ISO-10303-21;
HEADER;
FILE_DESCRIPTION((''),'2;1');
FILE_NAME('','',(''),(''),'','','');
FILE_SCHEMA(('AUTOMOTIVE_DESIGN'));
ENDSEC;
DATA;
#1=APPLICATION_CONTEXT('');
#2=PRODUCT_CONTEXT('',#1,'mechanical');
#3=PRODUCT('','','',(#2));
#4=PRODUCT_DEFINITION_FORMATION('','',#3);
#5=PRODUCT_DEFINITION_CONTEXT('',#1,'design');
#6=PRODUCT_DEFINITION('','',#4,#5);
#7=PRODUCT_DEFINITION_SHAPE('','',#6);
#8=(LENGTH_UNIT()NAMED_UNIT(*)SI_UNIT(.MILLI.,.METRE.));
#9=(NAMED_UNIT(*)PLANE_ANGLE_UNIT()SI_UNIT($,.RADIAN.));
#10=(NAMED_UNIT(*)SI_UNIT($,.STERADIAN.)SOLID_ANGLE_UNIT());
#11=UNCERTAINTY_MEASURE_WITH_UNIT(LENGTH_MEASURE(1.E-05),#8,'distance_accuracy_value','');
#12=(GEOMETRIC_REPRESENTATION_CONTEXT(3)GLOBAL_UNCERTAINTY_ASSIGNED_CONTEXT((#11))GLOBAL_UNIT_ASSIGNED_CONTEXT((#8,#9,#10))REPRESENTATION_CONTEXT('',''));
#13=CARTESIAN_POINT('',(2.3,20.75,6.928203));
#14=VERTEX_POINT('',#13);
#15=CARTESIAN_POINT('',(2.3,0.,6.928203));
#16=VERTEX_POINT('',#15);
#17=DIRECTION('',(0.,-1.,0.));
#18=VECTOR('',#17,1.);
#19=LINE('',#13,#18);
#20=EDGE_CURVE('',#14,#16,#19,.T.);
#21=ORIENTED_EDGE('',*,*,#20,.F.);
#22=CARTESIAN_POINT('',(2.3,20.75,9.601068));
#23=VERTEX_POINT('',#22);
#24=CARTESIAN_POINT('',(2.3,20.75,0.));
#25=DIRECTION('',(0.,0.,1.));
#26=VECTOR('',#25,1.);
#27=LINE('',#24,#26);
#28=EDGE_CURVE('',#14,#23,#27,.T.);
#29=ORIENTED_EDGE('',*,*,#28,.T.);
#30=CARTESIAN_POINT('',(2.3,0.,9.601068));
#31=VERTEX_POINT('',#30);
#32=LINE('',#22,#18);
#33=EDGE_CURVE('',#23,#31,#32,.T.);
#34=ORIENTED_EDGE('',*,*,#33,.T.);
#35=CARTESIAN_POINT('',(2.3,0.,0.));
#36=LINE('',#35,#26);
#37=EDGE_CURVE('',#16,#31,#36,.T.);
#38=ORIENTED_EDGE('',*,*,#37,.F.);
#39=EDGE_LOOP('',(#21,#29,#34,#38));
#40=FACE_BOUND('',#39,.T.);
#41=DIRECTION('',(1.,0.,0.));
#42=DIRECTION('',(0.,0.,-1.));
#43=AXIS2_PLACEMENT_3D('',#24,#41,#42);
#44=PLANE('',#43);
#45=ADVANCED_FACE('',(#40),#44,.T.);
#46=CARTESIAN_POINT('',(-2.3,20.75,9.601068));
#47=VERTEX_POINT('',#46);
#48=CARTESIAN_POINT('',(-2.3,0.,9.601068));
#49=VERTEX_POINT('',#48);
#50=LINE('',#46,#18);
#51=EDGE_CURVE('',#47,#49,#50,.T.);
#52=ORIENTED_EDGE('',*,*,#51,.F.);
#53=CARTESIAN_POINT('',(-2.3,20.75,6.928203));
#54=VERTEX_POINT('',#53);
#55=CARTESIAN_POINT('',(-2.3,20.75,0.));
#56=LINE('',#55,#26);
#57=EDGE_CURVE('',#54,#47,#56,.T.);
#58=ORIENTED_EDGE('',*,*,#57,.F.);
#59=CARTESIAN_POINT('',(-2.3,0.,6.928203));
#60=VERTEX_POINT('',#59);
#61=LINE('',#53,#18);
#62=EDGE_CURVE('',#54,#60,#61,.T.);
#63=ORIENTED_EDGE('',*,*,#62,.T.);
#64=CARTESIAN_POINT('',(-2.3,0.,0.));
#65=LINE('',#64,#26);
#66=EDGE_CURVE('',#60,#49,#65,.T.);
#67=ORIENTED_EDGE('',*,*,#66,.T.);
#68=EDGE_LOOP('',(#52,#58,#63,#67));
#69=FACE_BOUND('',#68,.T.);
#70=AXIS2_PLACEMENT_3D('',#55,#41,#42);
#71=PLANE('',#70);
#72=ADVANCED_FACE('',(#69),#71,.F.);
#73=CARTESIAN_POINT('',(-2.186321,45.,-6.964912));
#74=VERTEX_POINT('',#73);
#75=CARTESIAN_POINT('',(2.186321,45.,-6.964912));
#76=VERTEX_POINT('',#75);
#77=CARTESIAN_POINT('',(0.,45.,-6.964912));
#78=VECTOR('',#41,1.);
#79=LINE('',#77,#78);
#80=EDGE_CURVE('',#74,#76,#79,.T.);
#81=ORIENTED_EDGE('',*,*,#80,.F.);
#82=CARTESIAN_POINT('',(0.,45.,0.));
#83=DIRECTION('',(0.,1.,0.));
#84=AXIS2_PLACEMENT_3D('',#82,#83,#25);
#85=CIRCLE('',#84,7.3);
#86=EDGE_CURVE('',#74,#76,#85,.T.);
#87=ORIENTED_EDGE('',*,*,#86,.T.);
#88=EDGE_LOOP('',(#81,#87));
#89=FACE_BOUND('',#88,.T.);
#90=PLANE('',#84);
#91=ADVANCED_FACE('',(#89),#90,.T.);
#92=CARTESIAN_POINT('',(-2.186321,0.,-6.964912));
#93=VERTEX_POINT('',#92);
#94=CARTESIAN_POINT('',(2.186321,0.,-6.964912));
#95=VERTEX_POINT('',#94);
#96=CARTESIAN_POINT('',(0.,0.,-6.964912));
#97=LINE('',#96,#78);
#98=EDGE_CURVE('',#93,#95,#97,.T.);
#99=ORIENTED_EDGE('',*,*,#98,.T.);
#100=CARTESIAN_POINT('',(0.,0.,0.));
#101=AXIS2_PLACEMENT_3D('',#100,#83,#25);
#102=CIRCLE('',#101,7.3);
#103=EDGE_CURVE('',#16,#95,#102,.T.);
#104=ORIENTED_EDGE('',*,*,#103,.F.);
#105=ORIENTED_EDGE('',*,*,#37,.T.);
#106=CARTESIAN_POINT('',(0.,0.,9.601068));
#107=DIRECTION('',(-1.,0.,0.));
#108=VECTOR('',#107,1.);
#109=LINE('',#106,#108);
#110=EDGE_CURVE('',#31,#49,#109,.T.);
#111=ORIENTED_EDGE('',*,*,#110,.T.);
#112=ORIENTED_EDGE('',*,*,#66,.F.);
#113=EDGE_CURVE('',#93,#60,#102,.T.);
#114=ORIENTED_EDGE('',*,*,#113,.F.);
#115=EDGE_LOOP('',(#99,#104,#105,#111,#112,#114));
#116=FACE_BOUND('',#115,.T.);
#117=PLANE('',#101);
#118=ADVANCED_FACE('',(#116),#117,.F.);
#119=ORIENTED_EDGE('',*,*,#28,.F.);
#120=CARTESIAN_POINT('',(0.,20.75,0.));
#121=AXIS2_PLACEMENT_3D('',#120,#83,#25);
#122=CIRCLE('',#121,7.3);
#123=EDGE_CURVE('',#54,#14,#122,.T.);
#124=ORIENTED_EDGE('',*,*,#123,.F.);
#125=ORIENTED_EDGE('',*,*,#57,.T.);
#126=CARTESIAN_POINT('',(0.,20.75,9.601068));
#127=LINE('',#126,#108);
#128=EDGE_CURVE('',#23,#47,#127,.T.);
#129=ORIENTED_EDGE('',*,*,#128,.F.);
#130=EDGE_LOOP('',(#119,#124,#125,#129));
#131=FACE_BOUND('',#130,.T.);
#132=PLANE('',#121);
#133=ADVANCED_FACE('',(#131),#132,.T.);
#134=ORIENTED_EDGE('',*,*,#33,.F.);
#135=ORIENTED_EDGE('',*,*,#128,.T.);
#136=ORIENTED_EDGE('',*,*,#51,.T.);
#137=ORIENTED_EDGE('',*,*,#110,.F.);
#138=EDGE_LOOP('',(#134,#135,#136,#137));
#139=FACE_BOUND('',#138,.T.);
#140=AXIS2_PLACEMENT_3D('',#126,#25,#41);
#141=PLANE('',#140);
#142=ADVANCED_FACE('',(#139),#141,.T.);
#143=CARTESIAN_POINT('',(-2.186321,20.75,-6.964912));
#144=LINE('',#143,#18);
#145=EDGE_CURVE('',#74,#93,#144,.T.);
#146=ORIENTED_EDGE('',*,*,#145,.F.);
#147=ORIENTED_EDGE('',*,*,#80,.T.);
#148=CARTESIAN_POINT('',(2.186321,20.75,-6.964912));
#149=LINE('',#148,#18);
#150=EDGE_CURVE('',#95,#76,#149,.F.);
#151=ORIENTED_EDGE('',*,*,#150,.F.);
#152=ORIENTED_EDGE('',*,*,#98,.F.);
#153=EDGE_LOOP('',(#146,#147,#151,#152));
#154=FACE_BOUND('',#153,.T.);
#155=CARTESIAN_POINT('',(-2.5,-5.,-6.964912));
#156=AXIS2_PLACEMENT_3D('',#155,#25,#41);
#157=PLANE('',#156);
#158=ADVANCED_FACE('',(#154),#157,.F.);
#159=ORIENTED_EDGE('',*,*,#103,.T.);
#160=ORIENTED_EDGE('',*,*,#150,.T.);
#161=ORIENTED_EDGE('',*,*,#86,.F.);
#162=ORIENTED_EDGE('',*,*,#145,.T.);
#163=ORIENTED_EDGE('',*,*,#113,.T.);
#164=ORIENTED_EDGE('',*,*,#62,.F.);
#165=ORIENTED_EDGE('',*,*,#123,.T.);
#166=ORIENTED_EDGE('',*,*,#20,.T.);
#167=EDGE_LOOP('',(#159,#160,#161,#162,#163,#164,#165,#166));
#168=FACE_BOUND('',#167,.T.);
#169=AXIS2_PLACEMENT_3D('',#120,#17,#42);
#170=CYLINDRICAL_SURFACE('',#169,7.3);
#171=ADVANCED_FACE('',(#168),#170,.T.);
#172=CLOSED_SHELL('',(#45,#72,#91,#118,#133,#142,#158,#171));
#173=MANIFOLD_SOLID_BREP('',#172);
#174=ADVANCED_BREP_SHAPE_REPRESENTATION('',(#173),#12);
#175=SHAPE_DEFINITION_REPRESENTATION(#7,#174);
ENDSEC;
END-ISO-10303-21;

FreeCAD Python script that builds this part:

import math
import FreeCAD as App
import Part
import Sketcher

doc = App.newDocument("Part")
body = doc.addObject("PartDesign::Body", "Body")

# Sketch on XZ plane
sketch1 = body.newObject("Sketcher::SketchObject", "Sketch")
sketch1.AttachmentSupport = (doc.getObject("XZ_Plane"), [""])
sketch1.MapMode = "FlatFace"
sketch1.addGeometry([
    Part.LineSegment(App.Vector(-2.3, 6.928203, 0), App.Vector(-2.3, 9.601068, 0)),
    Part.LineSegment(App.Vector(-2.3, 9.601068, 0), App.Vector(2.3, 9.601068, 0)),
    Part.LineSegment(App.Vector(2.3, 9.601068, 0), App.Vector(2.3, 6.928203, 0)),
    Part.ArcOfCircle(Part.Circle(App.Vector(0, 0, 0), App.Vector(0, 0, 1), 7.3), math.radians(108.364949), math.radians(431.635051)),
], False)
sketch1.addConstraint([
    Sketcher.Constraint("Coincident", 0, 2, 1, 1),
    Sketcher.Constraint("Coincident", 1, 2, 2, 1),
    Sketcher.Constraint("Coincident", 2, 2, 3, 2),
    Sketcher.Constraint("Coincident", 3, 1, 0, 1),
    Sketcher.Constraint("Vertical", 0),
    Sketcher.Constraint("Horizontal", 1),
    Sketcher.Constraint("Vertical", 2),
    Sketcher.Constraint("Coincident", 3, 3, -1, 1),
    Sketcher.Constraint("Horizontal", 2, 2, 3, 1),
    Sketcher.Constraint("Radius", 3, 7.3),
    Sketcher.Constraint("DistanceX", 1, 1, 1, 2, 4.6),
    Sketcher.Constraint("DistanceY", 0, 1, 0, 2, 2.672865),
])
pad1 = body.newObject("PartDesign::Pad", "Pad")
pad1.Profile = sketch1
pad1.Length = 20.75
pad1.Reversed = True

# Sketch on XZ plane
sketch2 = body.newObject("Sketcher::SketchObject", "Sketch001")
sketch2.AttachmentSupport = (doc.getObject("XZ_Plane"), [""])
sketch2.MapMode = "FlatFace"
sketch2.AttachmentOffset = App.Placement(App.Vector(0, 0, -20.75), App.Rotation())
sketch2.addGeometry(Part.Circle(App.Vector(0, 0, 0), App.Vector(0, 0, 1), 7.3), False)
sketch2.addConstraint([
    Sketcher.Constraint("Coincident", 0, 3, -1, 1),
    Sketcher.Constraint("Diameter", 0, 14.6),
])
pad2 = body.newObject("PartDesign::Pad", "Pad001")
pad2.Profile = sketch2
pad2.Length = 24.25
pad2.Reversed = True

# Sketch on XZ plane
sketch3 = body.newObject("Sketcher::SketchObject", "Sketch002")
sketch3.AttachmentSupport = (doc.getObject("XZ_Plane"), [""])
sketch3.MapMode = "FlatFace"
sketch3.AttachmentOffset = App.Placement(App.Vector(0, 0, -45), App.Rotation())
sketch3.addGeometry([
    Part.LineSegment(App.Vector(-2.5, -6.964912, 0), App.Vector(2.5, -6.964912, 0)),
    Part.ArcOfCircle(Part.Circle(App.Vector(0, 0, 0), App.Vector(0, 0, 1), 7.4), math.radians(-109.745198), math.radians(-70.254802)),
], False)
sketch3.addConstraint([
    Sketcher.Constraint("Coincident", 0, 1, 1, 1),
    Sketcher.Constraint("Coincident", 1, 2, 0, 2),
    Sketcher.Constraint("Horizontal", 0),
    Sketcher.Constraint("Coincident", 1, 3, -1, 1),
    Sketcher.Constraint("Radius", 1, 7.4),
    Sketcher.Constraint("DistanceX", 0, 1, 0, 2, 5.0),
])
pocket1 = body.newObject("PartDesign::Pocket", "Pocket")
pocket1.Profile = sketch3
pocket1.Length = 50
pocket1.Reversed = True

doc.recompute()
